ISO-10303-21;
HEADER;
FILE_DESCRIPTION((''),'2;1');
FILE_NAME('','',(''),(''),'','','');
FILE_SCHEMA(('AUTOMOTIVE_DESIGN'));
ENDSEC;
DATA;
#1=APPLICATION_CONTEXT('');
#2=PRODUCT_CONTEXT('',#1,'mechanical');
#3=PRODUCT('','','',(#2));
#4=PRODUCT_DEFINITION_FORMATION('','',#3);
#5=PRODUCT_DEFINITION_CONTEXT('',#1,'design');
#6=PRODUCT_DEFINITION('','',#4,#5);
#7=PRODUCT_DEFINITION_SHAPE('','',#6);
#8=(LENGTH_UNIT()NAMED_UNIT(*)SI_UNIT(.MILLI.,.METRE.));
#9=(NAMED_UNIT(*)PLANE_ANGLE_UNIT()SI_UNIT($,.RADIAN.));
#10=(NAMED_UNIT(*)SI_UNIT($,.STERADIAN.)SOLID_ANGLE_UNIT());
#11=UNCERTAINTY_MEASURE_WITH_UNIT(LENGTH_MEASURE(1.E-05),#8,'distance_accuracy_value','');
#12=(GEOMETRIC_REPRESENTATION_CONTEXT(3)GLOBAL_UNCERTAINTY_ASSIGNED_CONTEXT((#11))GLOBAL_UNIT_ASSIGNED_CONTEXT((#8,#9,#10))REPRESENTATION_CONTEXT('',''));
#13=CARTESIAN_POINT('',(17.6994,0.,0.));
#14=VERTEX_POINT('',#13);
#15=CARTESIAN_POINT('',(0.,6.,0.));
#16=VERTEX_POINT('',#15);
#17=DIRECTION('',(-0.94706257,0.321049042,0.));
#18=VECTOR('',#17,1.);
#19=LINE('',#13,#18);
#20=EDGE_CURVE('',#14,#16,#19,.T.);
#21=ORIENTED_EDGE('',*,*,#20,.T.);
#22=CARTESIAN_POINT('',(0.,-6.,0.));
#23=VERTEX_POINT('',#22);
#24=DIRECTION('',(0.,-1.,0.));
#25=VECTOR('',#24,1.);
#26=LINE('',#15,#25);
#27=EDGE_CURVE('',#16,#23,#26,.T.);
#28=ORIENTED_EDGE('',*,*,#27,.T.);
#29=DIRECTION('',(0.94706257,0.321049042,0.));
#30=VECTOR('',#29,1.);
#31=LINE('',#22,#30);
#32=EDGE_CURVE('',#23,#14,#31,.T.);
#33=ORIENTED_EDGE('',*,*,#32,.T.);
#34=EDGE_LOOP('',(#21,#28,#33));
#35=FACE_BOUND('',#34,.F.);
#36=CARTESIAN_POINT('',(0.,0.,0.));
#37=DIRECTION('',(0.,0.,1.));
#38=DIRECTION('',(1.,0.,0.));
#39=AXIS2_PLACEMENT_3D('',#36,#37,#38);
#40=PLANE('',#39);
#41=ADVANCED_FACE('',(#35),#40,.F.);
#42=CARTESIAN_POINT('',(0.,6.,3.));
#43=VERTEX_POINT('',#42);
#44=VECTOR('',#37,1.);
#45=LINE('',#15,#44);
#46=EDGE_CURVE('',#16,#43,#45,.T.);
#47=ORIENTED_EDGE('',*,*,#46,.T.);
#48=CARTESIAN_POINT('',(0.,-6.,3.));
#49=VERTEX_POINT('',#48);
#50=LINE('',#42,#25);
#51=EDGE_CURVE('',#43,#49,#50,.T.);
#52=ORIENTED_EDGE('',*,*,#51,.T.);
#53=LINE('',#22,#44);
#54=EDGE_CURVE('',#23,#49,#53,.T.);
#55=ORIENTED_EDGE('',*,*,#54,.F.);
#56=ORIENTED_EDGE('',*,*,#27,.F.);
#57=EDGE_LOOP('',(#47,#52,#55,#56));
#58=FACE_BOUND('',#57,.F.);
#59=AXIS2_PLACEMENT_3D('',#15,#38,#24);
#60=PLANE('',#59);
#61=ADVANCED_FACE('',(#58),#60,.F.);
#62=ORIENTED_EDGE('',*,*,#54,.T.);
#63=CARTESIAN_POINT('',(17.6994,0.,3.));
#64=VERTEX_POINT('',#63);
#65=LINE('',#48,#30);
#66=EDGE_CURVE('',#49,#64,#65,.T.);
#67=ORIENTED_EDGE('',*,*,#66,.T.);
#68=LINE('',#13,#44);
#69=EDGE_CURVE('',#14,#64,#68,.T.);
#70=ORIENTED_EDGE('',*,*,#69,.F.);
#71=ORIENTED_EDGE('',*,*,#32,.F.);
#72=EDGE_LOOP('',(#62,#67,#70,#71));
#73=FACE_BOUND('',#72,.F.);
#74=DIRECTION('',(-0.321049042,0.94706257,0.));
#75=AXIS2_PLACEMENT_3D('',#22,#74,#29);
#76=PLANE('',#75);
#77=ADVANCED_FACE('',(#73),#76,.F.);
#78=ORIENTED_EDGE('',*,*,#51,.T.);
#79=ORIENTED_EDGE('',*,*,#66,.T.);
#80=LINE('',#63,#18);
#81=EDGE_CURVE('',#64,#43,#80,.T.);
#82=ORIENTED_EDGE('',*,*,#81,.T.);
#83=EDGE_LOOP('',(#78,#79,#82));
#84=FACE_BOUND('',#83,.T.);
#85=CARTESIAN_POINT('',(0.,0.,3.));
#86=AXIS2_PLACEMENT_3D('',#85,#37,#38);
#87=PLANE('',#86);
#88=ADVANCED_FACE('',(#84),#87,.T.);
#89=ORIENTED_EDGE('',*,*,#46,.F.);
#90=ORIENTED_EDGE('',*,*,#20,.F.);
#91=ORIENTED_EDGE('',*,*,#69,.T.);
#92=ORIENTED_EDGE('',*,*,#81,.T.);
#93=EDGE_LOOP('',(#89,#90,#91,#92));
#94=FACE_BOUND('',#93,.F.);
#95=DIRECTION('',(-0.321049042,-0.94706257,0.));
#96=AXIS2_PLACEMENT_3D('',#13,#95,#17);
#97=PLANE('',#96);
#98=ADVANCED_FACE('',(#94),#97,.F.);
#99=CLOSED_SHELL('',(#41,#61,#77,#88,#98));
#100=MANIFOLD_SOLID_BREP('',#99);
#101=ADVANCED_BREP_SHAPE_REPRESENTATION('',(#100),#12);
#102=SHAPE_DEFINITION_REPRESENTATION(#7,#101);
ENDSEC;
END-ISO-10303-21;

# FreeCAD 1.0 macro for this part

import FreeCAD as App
import Part
import Sketcher
from FreeCAD import Vector
Q = App.Units.Quantity


def add_polygon(sketch, points):
    """Adds a closed chain of lines whose ends are joined by coincident constraints."""
    first, n = sketch.GeometryCount, len(points)
    for a, b in zip(points, points[1:] + points[:1]):
        sketch.addGeometry(Part.LineSegment(App.Vector(*a, 0), App.Vector(*b, 0)), False)
    for i in range(n):
        sketch.addConstraint(Sketcher.Constraint("Coincident", first + i, 2, first + (i + 1) % n, 1))

doc = App.newDocument("Part")
body = doc.addObject("PartDesign::Body", "Body")

# Sketch on XY plane
sketch1 = doc.addObject("Sketcher::SketchObject", "Sketch")
body.addObject(sketch1)
sketch1.AttachmentSupport = (doc.XY_Plane, [""])
sketch1.MapMode = "FlatFace"
add_polygon(sketch1, [(0, -6), (18, 0), (0, 6)])  # lines 0-2
sketch1.addConstraint(Sketcher.Constraint("Vertical", 2))
sketch1.addConstraint(Sketcher.Constraint("Symmetric", 1, 2, 2, 2, -1, 1))
sketch1.addConstraint(Sketcher.Constraint("PointOnObject", 0, 2, -1))
sketch1.addConstraint(Sketcher.Constraint("DistanceY", 2, 2, 2, 1, Q("12 mm")))
sketch1.addConstraint(Sketcher.Constraint("Distance", 0, Q("18.6887 mm")))
pad1 = doc.addObject("PartDesign::Pad", "Pad")
body.addObject(pad1)
pad1.Profile = sketch1
pad1.Length = 3

doc.recompute()
